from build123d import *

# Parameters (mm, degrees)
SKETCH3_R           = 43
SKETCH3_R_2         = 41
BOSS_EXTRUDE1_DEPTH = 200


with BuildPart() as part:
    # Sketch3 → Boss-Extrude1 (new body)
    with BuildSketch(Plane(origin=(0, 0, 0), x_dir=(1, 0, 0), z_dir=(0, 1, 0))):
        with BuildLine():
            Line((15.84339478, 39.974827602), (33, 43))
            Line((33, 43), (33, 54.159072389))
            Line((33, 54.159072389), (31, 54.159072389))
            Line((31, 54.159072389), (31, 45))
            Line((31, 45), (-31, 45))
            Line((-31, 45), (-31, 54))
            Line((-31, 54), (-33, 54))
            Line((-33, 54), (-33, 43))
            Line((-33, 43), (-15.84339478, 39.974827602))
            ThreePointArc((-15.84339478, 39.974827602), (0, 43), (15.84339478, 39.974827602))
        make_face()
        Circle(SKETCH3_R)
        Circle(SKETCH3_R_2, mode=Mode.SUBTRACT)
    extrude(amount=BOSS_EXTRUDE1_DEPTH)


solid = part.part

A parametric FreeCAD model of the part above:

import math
import FreeCAD as App
import Part
import Sketcher

V = App.Vector
Q = App.Units.Quantity

doc = App.newDocument("Part")
body = doc.addObject("PartDesign::Body", "Body")

sketch1 = body.newObject("Sketcher::SketchObject", "Sketch")
sketch1.AttachmentSupport = (doc.getObject("XZ_Plane"), [""])
sketch1.MapMode = "FlatFace"
sketch1.addGeometry([
    Part.LineSegment(V(15.8, -40, 0), V(33, -43, 0)),
    Part.LineSegment(V(33, -43, 0), V(33, -54.2, 0)),
    Part.LineSegment(V(33, -54.2, 0), V(31, -54.2, 0)),
    Part.LineSegment(V(31, -54.2, 0), V(31, -45, 0)),
    Part.LineSegment(V(31, -45, 0), V(-31, -45, 0)),
    Part.LineSegment(V(-31, -45, 0), V(-31, -54, 0)),
    Part.LineSegment(V(-31, -54, 0), V(-33, -54, 0)),
    Part.LineSegment(V(-33, -54, 0), V(-33, -43, 0)),
    Part.LineSegment(V(-33, -43, 0), V(-15.8, -40, 0)),
    Part.ArcOfCircle(Part.Circle(V(0, 0, 0), V(0, 0, 1), 43), math.radians(-68), math.radians(248)),
    Part.Circle(V(0, 0, 0), V(0, 0, 1), 41),
], False)
sketch1.addConstraint([
    Sketcher.Constraint("Coincident", 0, 2, 1, 1),
    Sketcher.Constraint("Coincident", 1, 2, 2, 1),
    Sketcher.Constraint("Coincident", 2, 2, 3, 1),
    Sketcher.Constraint("Coincident", 3, 2, 4, 1),
    Sketcher.Constraint("Coincident", 4, 2, 5, 1),
    Sketcher.Constraint("Coincident", 5, 2, 6, 1),
    Sketcher.Constraint("Coincident", 6, 2, 7, 1),
    Sketcher.Constraint("Coincident", 7, 2, 8, 1),
    Sketcher.Constraint("Coincident", 8, 2, 9, 2),
    Sketcher.Constraint("Coincident", 9, 1, 0, 1),
    Sketcher.Constraint("Vertical", 1),
    Sketcher.Constraint("Horizontal", 2),
    Sketcher.Constraint("Vertical", 3),
    Sketcher.Constraint("Horizontal", 4),
    Sketcher.Constraint("Vertical", 5),
    Sketcher.Constraint("Horizontal", 6),
    Sketcher.Constraint("Vertical", 7),
    Sketcher.Constraint("Coincident", 9, 3, -1, 1),
    Sketcher.Constraint("Coincident", 10, 3, -1, 1),
    Sketcher.Constraint("Symmetric", 0, 2, 7, 2, -2),
    Sketcher.Constraint("Horizontal", 8, 2, 9, 1),
    Sketcher.Constraint("Equal", 2, 6),
    Sketcher.Constraint("Diameter", 10, Q("82 mm")),
    Sketcher.Constraint("Radius", 9, Q("43 mm")),
    Sketcher.Constraint("DistanceX", 2, 2, 2, 1, Q("2 mm")),
    Sketcher.Constraint("DistanceX", 4, 2, 4, 1, Q("62 mm")),
    Sketcher.Constraint("DistanceY", 5, 2, 5, 1, Q("9 mm")),
    Sketcher.Constraint("DistanceY", 7, 1, 7, 2, Q("11 mm")),
    Sketcher.Constraint("Angle", 0, Q("-10 deg")),
    Sketcher.Constraint("DistanceY", 0, 2, -1, 1, Q("43 mm")),
    Sketcher.Constraint("DistanceY", 1, 2, 1, 1, Q("11.159072 mm")),
])
pad1 = body.newObject("PartDesign::Pad", "Pad")
pad1.Profile = sketch1
pad1.Length = 200
pad1.Reversed = True

doc.recompute()
